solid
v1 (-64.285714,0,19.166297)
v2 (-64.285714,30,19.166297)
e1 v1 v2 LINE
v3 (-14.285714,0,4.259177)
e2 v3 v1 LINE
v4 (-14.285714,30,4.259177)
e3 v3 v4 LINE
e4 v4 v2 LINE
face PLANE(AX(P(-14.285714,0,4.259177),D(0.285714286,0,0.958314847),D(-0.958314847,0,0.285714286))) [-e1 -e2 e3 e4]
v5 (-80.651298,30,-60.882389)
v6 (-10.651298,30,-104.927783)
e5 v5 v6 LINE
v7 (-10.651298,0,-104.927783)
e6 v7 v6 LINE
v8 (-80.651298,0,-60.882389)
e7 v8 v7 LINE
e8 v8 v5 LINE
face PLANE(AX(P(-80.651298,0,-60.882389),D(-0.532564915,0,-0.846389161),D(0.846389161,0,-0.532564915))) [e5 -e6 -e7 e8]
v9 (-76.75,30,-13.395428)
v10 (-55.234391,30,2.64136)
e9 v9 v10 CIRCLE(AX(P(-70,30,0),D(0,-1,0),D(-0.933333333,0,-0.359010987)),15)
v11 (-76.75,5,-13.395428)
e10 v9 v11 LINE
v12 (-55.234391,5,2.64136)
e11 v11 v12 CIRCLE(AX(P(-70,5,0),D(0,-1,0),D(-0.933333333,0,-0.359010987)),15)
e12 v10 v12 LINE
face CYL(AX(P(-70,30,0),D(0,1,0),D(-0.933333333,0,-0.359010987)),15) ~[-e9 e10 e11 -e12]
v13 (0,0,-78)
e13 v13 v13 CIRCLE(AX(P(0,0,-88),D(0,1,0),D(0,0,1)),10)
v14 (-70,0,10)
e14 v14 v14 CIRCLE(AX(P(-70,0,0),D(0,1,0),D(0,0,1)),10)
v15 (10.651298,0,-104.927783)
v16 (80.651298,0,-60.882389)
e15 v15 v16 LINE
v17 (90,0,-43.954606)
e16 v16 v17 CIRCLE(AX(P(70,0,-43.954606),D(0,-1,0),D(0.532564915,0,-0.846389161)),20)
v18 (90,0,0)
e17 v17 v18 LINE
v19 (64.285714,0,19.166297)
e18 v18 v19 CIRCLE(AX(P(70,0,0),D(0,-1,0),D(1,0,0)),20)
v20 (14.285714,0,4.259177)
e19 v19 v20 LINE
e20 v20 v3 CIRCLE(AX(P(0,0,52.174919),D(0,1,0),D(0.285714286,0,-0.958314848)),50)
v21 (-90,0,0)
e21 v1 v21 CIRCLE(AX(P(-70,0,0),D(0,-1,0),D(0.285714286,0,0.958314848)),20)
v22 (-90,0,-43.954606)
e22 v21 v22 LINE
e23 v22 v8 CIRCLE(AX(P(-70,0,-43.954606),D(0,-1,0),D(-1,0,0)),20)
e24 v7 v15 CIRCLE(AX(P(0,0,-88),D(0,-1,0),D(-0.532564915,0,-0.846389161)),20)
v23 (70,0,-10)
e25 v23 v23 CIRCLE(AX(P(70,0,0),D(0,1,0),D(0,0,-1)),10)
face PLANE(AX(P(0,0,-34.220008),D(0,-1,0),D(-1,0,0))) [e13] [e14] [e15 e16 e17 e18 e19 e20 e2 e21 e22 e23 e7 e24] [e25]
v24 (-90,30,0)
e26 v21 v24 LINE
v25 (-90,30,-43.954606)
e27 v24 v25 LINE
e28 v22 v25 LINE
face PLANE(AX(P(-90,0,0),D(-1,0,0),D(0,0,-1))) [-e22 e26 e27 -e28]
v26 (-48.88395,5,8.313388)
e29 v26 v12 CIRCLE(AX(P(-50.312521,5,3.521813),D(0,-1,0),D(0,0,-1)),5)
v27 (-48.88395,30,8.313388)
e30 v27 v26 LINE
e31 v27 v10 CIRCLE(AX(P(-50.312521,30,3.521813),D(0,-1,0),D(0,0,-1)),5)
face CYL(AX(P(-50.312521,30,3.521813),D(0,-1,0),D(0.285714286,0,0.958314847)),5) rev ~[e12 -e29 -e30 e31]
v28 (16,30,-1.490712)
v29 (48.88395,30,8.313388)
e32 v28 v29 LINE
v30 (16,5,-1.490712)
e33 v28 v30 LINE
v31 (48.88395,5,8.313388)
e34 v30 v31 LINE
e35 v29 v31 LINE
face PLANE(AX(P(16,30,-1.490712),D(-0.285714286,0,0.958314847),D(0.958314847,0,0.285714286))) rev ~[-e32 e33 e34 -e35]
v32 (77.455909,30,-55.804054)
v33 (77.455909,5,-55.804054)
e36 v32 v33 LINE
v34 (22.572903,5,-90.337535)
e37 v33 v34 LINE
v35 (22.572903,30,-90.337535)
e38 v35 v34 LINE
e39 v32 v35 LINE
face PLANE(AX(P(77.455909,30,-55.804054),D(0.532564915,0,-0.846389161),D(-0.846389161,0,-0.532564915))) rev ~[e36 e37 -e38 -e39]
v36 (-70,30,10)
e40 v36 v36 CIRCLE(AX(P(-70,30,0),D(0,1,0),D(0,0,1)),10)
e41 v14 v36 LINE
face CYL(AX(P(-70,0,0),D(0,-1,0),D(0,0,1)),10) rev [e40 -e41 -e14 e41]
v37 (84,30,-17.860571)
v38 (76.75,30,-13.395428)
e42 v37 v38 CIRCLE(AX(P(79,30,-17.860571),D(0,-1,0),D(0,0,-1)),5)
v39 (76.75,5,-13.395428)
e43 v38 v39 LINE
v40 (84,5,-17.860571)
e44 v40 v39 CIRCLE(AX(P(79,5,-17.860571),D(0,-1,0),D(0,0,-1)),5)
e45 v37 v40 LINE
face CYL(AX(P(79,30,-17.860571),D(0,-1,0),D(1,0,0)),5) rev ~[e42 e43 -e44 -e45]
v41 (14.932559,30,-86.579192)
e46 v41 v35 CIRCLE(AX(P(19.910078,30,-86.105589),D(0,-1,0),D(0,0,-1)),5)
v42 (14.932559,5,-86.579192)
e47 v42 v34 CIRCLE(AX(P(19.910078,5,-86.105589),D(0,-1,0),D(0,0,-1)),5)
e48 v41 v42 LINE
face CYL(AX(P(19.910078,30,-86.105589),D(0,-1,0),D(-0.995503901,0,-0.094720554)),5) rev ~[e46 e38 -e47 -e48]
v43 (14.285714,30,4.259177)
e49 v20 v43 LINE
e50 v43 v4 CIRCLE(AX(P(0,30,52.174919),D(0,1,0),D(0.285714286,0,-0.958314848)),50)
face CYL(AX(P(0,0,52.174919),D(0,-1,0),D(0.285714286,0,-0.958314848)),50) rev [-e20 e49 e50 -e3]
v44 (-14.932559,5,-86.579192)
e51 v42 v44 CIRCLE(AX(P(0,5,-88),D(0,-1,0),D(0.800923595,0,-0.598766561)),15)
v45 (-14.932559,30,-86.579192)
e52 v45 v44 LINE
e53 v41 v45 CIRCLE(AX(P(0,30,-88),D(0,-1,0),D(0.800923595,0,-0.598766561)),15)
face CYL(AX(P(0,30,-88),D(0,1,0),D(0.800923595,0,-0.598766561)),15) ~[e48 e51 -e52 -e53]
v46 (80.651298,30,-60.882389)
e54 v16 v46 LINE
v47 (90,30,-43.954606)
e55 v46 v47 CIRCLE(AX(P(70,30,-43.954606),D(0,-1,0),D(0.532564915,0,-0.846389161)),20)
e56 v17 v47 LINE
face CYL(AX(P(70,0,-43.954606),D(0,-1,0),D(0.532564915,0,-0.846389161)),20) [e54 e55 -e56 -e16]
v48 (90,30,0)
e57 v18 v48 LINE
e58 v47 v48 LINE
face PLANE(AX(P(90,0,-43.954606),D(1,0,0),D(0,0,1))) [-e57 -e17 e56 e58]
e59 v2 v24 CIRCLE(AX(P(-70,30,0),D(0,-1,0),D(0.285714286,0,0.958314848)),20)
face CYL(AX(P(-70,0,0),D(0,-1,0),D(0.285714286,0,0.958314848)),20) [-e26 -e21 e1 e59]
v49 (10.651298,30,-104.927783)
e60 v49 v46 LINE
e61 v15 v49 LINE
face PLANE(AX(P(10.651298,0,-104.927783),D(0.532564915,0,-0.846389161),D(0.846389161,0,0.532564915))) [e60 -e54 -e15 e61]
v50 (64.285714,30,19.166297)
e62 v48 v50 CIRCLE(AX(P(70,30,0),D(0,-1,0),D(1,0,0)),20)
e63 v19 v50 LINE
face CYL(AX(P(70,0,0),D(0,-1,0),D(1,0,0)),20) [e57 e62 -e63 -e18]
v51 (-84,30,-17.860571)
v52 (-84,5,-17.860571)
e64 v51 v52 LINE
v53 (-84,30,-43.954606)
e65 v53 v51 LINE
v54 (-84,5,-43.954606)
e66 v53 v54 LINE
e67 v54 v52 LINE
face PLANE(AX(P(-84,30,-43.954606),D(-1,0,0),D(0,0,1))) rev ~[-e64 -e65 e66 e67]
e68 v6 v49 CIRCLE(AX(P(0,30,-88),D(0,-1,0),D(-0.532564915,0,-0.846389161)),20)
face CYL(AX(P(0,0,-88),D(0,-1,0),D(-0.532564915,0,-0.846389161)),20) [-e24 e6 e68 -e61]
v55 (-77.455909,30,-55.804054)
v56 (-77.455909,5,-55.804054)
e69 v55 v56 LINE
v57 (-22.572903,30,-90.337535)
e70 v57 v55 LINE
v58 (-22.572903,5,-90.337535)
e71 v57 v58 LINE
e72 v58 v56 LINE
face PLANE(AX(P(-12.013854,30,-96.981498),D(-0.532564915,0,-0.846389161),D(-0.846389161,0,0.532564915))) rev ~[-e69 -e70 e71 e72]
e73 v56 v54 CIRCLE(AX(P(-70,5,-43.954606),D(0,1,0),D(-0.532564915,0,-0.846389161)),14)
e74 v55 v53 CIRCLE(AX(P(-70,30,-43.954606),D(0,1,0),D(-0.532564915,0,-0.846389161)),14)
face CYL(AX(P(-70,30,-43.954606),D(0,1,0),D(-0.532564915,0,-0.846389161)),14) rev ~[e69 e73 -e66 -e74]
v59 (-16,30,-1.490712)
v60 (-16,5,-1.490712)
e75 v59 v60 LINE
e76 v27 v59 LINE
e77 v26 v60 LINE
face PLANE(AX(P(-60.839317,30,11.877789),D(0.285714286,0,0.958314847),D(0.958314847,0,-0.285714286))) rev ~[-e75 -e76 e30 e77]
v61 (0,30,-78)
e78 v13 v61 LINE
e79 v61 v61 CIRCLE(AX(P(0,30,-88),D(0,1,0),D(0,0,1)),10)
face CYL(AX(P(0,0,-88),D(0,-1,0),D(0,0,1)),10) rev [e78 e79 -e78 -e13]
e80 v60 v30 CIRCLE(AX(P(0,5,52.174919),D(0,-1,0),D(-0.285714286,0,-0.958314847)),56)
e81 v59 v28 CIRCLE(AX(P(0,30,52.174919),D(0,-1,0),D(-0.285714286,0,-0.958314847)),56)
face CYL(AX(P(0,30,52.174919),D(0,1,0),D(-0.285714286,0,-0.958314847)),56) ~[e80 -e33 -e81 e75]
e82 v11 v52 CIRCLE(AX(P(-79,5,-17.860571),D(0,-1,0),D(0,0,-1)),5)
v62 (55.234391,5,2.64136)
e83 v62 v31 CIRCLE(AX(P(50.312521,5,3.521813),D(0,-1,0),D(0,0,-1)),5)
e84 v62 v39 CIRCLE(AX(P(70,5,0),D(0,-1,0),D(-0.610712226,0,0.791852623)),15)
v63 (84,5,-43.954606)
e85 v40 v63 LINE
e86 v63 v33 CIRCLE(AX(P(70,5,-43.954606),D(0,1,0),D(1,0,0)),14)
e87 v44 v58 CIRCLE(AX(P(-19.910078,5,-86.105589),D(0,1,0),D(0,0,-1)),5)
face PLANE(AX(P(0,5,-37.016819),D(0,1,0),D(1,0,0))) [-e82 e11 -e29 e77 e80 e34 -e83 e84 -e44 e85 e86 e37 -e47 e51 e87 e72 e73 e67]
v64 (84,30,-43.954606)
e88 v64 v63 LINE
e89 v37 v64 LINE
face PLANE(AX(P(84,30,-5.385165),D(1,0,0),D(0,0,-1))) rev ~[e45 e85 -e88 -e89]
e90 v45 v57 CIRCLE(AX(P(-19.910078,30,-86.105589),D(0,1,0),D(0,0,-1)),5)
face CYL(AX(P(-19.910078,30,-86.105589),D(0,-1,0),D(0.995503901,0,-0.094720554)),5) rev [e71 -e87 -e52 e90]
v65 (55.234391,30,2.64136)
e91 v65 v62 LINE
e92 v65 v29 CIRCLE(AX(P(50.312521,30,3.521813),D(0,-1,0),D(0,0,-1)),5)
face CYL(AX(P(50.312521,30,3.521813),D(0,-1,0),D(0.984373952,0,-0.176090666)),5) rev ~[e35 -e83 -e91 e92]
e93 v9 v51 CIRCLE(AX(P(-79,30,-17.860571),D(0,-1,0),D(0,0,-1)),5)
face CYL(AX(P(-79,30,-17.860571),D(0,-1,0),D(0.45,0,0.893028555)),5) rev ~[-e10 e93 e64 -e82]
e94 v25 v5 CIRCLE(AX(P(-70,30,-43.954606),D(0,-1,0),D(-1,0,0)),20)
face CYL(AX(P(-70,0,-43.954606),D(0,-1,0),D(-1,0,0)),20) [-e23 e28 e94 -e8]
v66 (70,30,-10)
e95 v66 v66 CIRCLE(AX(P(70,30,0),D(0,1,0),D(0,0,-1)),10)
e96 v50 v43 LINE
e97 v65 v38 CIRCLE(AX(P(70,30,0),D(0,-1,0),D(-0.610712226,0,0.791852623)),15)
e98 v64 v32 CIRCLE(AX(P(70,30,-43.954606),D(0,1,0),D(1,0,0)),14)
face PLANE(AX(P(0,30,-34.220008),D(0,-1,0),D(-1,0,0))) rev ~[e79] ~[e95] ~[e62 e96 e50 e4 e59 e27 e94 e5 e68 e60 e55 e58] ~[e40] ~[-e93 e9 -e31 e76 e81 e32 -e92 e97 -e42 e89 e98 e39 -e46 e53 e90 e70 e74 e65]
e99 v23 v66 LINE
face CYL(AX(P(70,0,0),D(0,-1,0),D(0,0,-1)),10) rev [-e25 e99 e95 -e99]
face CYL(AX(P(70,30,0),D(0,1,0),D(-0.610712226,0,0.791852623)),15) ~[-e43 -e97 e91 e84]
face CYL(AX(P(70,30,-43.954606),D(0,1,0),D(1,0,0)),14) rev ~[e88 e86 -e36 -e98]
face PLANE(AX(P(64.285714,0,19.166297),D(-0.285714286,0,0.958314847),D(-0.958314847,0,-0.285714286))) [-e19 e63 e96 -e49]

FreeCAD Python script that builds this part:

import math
import FreeCAD as App
import Part
import Sketcher

V = App.Vector
Q = App.Units.Quantity


def edges_at(feature, points):
    """Names of the edges that pass closest to the given points."""
    edges = feature.Shape.Edges
    near = lambda p: min(range(len(edges)), key=lambda i: edges[i].distToShape(Part.Vertex(*p))[0])
    return sorted({f"Edge{near(p) + 1}" for p in points})

doc = App.newDocument("Part")
body = doc.addObject("PartDesign::Body", "Body")

sketch1 = body.newObject("Sketcher::SketchObject", "Sketch")
sketch1.AttachmentSupport = (doc.getObject("XZ_Plane"), [""])
sketch1.MapMode = "FlatFace"
sketch1.addGeometry([
    Part.LineSegment(V(-90, -44, 0), V(-90, 0, 0)),
    Part.ArcOfCircle(Part.Circle(V(-70, 0, 0), V(0, 0, 1), 20), math.radians(73), math.radians(180)),
    Part.LineSegment(V(-64, 19, 0), V(-14, 4, 0)),
    Part.ArcOfCircle(Part.Circle(V(0, 52, 0), V(0, 0, 1), 50), math.radians(-107), math.radians(-73)),
    Part.LineSegment(V(14, 4, 0), V(64, 19, 0)),
    Part.ArcOfCircle(Part.Circle(V(70, 0, 0), V(0, 0, 1), 20), math.radians(0), math.radians(107)),
    Part.LineSegment(V(90, 0, 0), V(90, -44, 0)),
    Part.ArcOfCircle(Part.Circle(V(70, -44, 0), V(0, 0, 1), 20), math.radians(-58), math.radians(0)),
    Part.LineSegment(V(81, -61, 0), V(11, -105, 0)),
    Part.ArcOfCircle(Part.Circle(V(0, -88, 0), V(0, 0, 1), 20), math.radians(-122), math.radians(-58)),
    Part.LineSegment(V(-11, -105, 0), V(-81, -61, 0)),
    Part.ArcOfCircle(Part.Circle(V(-70, -44, 0), V(0, 0, 1), 20), math.radians(-180), math.radians(-122)),
    Part.Circle(V(70, 0, 0), V(0, 0, 1), 10),
    Part.Circle(V(-70, 0, 0), V(0, 0, 1), 10),
    Part.Circle(V(0, -88, 0), V(0, 0, 1), 10),
], False)
sketch1.addConstraint([
    Sketcher.Constraint("Tangent", 0, 2, 1, 2),
    Sketcher.Constraint("Tangent", 1, 1, 2, 1),
    Sketcher.Constraint("Tangent", 2, 2, 3, 1),
    Sketcher.Constraint("Tangent", 3, 2, 4, 1),
    Sketcher.Constraint("Tangent", 4, 2, 5, 2),
    Sketcher.Constraint("Tangent", 5, 1, 6, 1),
    Sketcher.Constraint("Tangent", 6, 2, 7, 2),
    Sketcher.Constraint("Tangent", 7, 1, 8, 1),
    Sketcher.Constraint("Tangent", 8, 2, 9, 2),
    Sketcher.Constraint("Tangent", 9, 1, 10, 1),
    Sketcher.Constraint("Tangent", 10, 2, 11, 2),
    Sketcher.Constraint("Tangent", 11, 1, 0, 1),
    Sketcher.Constraint("Vertical", 0),
    Sketcher.Constraint("Vertical", 6),
    Sketcher.Constraint("Coincident", 12, 3, 5, 3),
    Sketcher.Constraint("Coincident", 13, 3, 1, 3),
    Sketcher.Constraint("Coincident", 14, 3, 9, 3),
    Sketcher.Constraint("Equal", 1, 5),
    Sketcher.Constraint("Equal", 5, 7),
    Sketcher.Constraint("Equal", 7, 9),
    Sketcher.Constraint("Equal", 9, 11),
    Sketcher.Constraint("Equal", 12, 13),
    Sketcher.Constraint("Equal", 13, 14),
    Sketcher.Constraint("Symmetric", 1, 3, 5, 3, -1, 1),
    Sketcher.Constraint("Symmetric", 2, 2, 3, 2, -2),
    Sketcher.Constraint("Symmetric", 8, 2, 9, 1, -2),
    Sketcher.Constraint("Diameter", 12, Q("20 mm")),
    Sketcher.Constraint("Radius", 1, Q("20 mm")),
    Sketcher.Constraint("Radius", 3, Q("50 mm")),
    Sketcher.Constraint("DistanceX", 1, 3, -1, 1, Q("70 mm")),
    Sketcher.Constraint("DistanceY", 9, 3, -1, 1, Q("88 mm")),
    Sketcher.Constraint("DistanceX", 1, 1, 2, 2, Q("50 mm")),
    Sketcher.Constraint("DistanceX", -1, 1, 7, 1, Q("80.651298 mm")),
])
pad1 = body.newObject("PartDesign::Pad", "Pad")
pad1.Profile = sketch1
pad1.Length = 30
pad1.Reversed = True

sketch2 = body.newObject("Sketcher::SketchObject", "Sketch001")
sketch2.AttachmentSupport = (doc.getObject("XZ_Plane"), [""])
sketch2.MapMode = "FlatFace"
sketch2.AttachmentOffset = App.Placement(V(0, 0, -30), App.Rotation())
sketch2.addGeometry([
    Part.LineSegment(V(-12, -97, 0), V(-77, -56, 0)),
    Part.ArcOfCircle(Part.Circle(V(-70, -44, 0), V(0, 0, 1), 14), math.radians(180), math.radians(238)),
    Part.LineSegment(V(-84, -44, 0), V(-84, -5, 0)),
    Part.ArcOfCircle(Part.Circle(V(-70, 0, 0), V(0, 0, 1), 15), math.radians(-159), math.radians(52)),
    Part.LineSegment(V(-61, 12, 0), V(-16, -1, 0)),
    Part.ArcOfCircle(Part.Circle(V(0, 52, 0), V(0, 0, 1), 56), math.radians(-107), math.radians(-73)),
    Part.LineSegment(V(16, -1, 0), V(61, 12, 0)),
    Part.ArcOfCircle(Part.Circle(V(70, 0, 0), V(0, 0, 1), 15), math.radians(128), math.radians(339)),
    Part.LineSegment(V(84, -5, 0), V(84, -44, 0)),
    Part.ArcOfCircle(Part.Circle(V(70, -44, 0), V(0, 0, 1), 14), math.radians(-58), math.radians(0)),
    Part.LineSegment(V(77, -56, 0), V(12, -97, 0)),
    Part.ArcOfCircle(Part.Circle(V(0, -88, 0), V(0, 0, 1), 15), math.radians(-37), math.radians(217)),
], False)
sketch2.addConstraint([
    Sketcher.Constraint("Tangent", 0, 2, 1, 2),
    Sketcher.Constraint("Tangent", 1, 1, 2, 1),
    Sketcher.Constraint("Coincident", 2, 2, 3, 1),
    Sketcher.Constraint("Coincident", 3, 2, 4, 1),
    Sketcher.Constraint("Tangent", 4, 2, 5, 1),
    Sketcher.Constraint("Tangent", 5, 2, 6, 1),
    Sketcher.Constraint("Coincident", 6, 2, 7, 1),
    Sketcher.Constraint("Coincident", 7, 2, 8, 1),
    Sketcher.Constraint("Tangent", 8, 2, 9, 2),
    Sketcher.Constraint("Tangent", 9, 1, 10, 1),
    Sketcher.Constraint("Coincident", 10, 2, 11, 1),
    Sketcher.Constraint("Coincident", 11, 2, 0, 1),
    Sketcher.Constraint("Vertical", 2),
    Sketcher.Constraint("Vertical", 8),
    Sketcher.Constraint("Equal", 3, 7),
    Sketcher.Constraint("Equal", 1, 9),
    Sketcher.Constraint("Equal", 7, 11),
    Sketcher.Constraint("Symmetric", 3, 3, 7, 3, -1, 1),
    Sketcher.Constraint("Symmetric", 1, 3, 9, 3, -2),
    Sketcher.Constraint("Symmetric", 4, 2, 5, 2, -2),
    Sketcher.Constraint("Symmetric", 10, 2, 11, 2, -2),
    Sketcher.Constraint("PointOnObject", 3, 3, -1),
    Sketcher.Constraint("Vertical", 1, 3, 3, 3),
    Sketcher.Constraint("Radius", 1, Q("14 mm")),
    Sketcher.Constraint("Radius", 3, Q("15 mm")),
    Sketcher.Constraint("Radius", 5, Q("56 mm")),
    Sketcher.Constraint("DistanceX", 1, 3, -1, 1, Q("70 mm")),
    Sketcher.Constraint("DistanceY", 11, 3, -1, 1, Q("88 mm")),
    Sketcher.Constraint("DistanceX", 4, 2, -1, 1, Q("16 mm")),
    Sketcher.Constraint("DistanceY", 2, 1, 2, 2, Q("38.569441 mm")),
    Sketcher.Constraint("DistanceY", 10, 2, -1, 1, Q("96.981498 mm")),
    Sketcher.Constraint("DistanceY", 4, 2, 3, 2, Q("13.368501 mm")),
])
pocket1 = body.newObject("PartDesign::Pocket", "Pocket")
pocket1.Profile = sketch2
pocket1.Length = 25
pocket1.Reversed = True
doc.recompute()

fillet = body.newObject("PartDesign::Fillet", "Fillet")
fillet.Base = (pocket1, edges_at(pocket1, [
    (84, 17.5, -5.385),
    (60.839, 17.5, 11.878),
    (-60.839, 17.5, 11.878),
    (-84, 17.5, -5.385),
    (-12.014, 17.5, -96.981),
    (12.014, 17.5, -96.981),
]))
fillet.Radius = 5

doc.recompute()
